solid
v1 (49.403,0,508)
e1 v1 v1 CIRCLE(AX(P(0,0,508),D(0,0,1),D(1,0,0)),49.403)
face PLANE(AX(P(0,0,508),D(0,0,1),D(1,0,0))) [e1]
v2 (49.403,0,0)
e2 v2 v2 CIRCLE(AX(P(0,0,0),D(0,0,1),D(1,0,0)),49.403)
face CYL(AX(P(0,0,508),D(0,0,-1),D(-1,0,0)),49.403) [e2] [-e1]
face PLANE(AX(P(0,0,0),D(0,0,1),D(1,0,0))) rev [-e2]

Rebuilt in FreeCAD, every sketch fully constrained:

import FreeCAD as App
import Part
import Sketcher
from FreeCAD import Vector
Q = App.Units.Quantity

doc = App.newDocument("Part")
body = doc.addObject("PartDesign::Body", "Body")

# Sketch on XY plane
sketch1 = body.newObject("Sketcher::SketchObject", "Sketch")
sketch1.AttachmentSupport = (doc.getObject("XY_Plane"), [""])
sketch1.MapMode = "FlatFace"
sketch1.addGeometry(Part.Circle(Vector(0, 0, 0), Vector(0, 0, 1), 49.403), False)
sketch1.addConstraint([
    Sketcher.Constraint("Coincident", 0, 3, -1, 1),
    Sketcher.Constraint("Diameter", 0, Q("3.89 in")),
])
pad1 = body.newObject("PartDesign::Pad", "Pad")
pad1.Profile = sketch1
pad1.Length = Q("20 in")

doc.recompute()
